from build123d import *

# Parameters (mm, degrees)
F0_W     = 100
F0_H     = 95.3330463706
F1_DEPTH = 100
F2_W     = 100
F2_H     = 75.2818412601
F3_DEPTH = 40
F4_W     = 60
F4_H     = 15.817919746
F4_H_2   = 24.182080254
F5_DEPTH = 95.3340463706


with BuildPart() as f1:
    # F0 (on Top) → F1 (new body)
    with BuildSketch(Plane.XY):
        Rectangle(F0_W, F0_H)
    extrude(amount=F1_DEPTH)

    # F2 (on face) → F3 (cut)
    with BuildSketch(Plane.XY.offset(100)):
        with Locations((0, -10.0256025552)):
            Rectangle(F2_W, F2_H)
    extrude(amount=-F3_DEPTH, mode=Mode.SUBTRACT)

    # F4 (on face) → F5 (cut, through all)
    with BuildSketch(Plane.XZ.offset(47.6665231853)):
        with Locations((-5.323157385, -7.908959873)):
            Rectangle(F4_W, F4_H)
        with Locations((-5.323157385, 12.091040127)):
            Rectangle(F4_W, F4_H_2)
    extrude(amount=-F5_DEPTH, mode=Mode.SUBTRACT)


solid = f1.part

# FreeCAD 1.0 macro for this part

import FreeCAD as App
import Part
import Sketcher
from FreeCAD import Vector


def add_polygon(sketch, points):
    """Adds a closed chain of lines whose ends are joined by coincident constraints."""
    first, n = sketch.GeometryCount, len(points)
    for a, b in zip(points, points[1:] + points[:1]):
        sketch.addGeometry(Part.LineSegment(App.Vector(*a, 0), App.Vector(*b, 0)), False)
    for i in range(n):
        sketch.addConstraint(Sketcher.Constraint("Coincident", first + i, 2, first + (i + 1) % n, 1))

doc = App.newDocument("Part")
body = doc.addObject("PartDesign::Body", "Body")

# Sketch on XY plane
sketch1 = doc.addObject("Sketcher::SketchObject", "Sketch")
body.addObject(sketch1)
sketch1.AttachmentSupport = (doc.XY_Plane, [""])
sketch1.MapMode = "FlatFace"
add_polygon(sketch1, [(-50, 48), (-50, -48), (50, -48), (50, 48)])  # lines 0-3
sketch1.addConstraint([
    Sketcher.Constraint("Vertical", 0),
    Sketcher.Constraint("Horizontal", 1),
    Sketcher.Constraint("Vertical", 2),
    Sketcher.Constraint("Horizontal", 3),
    Sketcher.Constraint("Symmetric", 0, 2, 2, 2, -1, 1),
    Sketcher.Constraint("DistanceX", 1, 1, 1, 2, 100.0),
    Sketcher.Constraint("DistanceY", 0, 2, 0, 1, 95.333046),
])
pad1 = doc.addObject("PartDesign::Pad", "Pad")
body.addObject(pad1)
pad1.Profile = sketch1
pad1.Length = 100

# Sketch on XY plane
sketch2 = doc.addObject("Sketcher::SketchObject", "Sketch001")
body.addObject(sketch2)
sketch2.AttachmentSupport = (doc.XY_Plane, [""])
sketch2.MapMode = "FlatFace"
sketch2.AttachmentOffset = App.Placement(Vector(0, 0, 100), App.Rotation())
add_polygon(sketch2, [(-50, 28), (-50, -48), (50, -48), (50, 28)])  # lines 0-3
sketch2.addConstraint([
    Sketcher.Constraint("Vertical", 0),
    Sketcher.Constraint("Horizontal", 1),
    Sketcher.Constraint("Vertical", 2),
    Sketcher.Constraint("Horizontal", 3),
    Sketcher.Constraint("DistanceX", 1, 1, 1, 2, 100.0),
    Sketcher.Constraint("DistanceX", 0, 2, -1, 1, 50.0),
    Sketcher.Constraint("DistanceY", 0, 2, 0, 1, 75.281841),
    Sketcher.Constraint("DistanceY", -1, 1, 2, 2, 27.615318),
])
pocket1 = doc.addObject("PartDesign::Pocket", "Pocket")
body.addObject(pocket1)
pocket1.Profile = sketch2
pocket1.Length = 40

# Sketch on XZ plane
sketch3 = doc.addObject("Sketcher::SketchObject", "Sketch002")
body.addObject(sketch3)
sketch3.AttachmentSupport = (doc.XZ_Plane, [""])
sketch3.MapMode = "FlatFace"
sketch3.AttachmentOffset = App.Placement(Vector(0, 0, 47.666523), App.Rotation())
add_polygon(sketch3, [(-35, -16), (25, -16), (25, 24), (-35, 24)])  # lines 0-3
sketch3.addConstraint([
    Sketcher.Constraint("Horizontal", 0),
    Sketcher.Constraint("Vertical", 1),
    Sketcher.Constraint("Horizontal", 2),
    Sketcher.Constraint("Vertical", 3),
    Sketcher.Constraint("DistanceX", 0, 1, 0, 2, 60.0),
    Sketcher.Constraint("DistanceY", 1, 1, 1, 2, 40.0),
    Sketcher.Constraint("DistanceY", 0, 2, -1, 1, 15.81792),
    Sketcher.Constraint("DistanceX", -1, 1, 0, 2, 24.676843),
])
pocket2 = doc.addObject("PartDesign::Pocket", "Pocket001")
body.addObject(pocket2)
pocket2.Profile = sketch3
pocket2.Type = "ThroughAll"

doc.recompute()
